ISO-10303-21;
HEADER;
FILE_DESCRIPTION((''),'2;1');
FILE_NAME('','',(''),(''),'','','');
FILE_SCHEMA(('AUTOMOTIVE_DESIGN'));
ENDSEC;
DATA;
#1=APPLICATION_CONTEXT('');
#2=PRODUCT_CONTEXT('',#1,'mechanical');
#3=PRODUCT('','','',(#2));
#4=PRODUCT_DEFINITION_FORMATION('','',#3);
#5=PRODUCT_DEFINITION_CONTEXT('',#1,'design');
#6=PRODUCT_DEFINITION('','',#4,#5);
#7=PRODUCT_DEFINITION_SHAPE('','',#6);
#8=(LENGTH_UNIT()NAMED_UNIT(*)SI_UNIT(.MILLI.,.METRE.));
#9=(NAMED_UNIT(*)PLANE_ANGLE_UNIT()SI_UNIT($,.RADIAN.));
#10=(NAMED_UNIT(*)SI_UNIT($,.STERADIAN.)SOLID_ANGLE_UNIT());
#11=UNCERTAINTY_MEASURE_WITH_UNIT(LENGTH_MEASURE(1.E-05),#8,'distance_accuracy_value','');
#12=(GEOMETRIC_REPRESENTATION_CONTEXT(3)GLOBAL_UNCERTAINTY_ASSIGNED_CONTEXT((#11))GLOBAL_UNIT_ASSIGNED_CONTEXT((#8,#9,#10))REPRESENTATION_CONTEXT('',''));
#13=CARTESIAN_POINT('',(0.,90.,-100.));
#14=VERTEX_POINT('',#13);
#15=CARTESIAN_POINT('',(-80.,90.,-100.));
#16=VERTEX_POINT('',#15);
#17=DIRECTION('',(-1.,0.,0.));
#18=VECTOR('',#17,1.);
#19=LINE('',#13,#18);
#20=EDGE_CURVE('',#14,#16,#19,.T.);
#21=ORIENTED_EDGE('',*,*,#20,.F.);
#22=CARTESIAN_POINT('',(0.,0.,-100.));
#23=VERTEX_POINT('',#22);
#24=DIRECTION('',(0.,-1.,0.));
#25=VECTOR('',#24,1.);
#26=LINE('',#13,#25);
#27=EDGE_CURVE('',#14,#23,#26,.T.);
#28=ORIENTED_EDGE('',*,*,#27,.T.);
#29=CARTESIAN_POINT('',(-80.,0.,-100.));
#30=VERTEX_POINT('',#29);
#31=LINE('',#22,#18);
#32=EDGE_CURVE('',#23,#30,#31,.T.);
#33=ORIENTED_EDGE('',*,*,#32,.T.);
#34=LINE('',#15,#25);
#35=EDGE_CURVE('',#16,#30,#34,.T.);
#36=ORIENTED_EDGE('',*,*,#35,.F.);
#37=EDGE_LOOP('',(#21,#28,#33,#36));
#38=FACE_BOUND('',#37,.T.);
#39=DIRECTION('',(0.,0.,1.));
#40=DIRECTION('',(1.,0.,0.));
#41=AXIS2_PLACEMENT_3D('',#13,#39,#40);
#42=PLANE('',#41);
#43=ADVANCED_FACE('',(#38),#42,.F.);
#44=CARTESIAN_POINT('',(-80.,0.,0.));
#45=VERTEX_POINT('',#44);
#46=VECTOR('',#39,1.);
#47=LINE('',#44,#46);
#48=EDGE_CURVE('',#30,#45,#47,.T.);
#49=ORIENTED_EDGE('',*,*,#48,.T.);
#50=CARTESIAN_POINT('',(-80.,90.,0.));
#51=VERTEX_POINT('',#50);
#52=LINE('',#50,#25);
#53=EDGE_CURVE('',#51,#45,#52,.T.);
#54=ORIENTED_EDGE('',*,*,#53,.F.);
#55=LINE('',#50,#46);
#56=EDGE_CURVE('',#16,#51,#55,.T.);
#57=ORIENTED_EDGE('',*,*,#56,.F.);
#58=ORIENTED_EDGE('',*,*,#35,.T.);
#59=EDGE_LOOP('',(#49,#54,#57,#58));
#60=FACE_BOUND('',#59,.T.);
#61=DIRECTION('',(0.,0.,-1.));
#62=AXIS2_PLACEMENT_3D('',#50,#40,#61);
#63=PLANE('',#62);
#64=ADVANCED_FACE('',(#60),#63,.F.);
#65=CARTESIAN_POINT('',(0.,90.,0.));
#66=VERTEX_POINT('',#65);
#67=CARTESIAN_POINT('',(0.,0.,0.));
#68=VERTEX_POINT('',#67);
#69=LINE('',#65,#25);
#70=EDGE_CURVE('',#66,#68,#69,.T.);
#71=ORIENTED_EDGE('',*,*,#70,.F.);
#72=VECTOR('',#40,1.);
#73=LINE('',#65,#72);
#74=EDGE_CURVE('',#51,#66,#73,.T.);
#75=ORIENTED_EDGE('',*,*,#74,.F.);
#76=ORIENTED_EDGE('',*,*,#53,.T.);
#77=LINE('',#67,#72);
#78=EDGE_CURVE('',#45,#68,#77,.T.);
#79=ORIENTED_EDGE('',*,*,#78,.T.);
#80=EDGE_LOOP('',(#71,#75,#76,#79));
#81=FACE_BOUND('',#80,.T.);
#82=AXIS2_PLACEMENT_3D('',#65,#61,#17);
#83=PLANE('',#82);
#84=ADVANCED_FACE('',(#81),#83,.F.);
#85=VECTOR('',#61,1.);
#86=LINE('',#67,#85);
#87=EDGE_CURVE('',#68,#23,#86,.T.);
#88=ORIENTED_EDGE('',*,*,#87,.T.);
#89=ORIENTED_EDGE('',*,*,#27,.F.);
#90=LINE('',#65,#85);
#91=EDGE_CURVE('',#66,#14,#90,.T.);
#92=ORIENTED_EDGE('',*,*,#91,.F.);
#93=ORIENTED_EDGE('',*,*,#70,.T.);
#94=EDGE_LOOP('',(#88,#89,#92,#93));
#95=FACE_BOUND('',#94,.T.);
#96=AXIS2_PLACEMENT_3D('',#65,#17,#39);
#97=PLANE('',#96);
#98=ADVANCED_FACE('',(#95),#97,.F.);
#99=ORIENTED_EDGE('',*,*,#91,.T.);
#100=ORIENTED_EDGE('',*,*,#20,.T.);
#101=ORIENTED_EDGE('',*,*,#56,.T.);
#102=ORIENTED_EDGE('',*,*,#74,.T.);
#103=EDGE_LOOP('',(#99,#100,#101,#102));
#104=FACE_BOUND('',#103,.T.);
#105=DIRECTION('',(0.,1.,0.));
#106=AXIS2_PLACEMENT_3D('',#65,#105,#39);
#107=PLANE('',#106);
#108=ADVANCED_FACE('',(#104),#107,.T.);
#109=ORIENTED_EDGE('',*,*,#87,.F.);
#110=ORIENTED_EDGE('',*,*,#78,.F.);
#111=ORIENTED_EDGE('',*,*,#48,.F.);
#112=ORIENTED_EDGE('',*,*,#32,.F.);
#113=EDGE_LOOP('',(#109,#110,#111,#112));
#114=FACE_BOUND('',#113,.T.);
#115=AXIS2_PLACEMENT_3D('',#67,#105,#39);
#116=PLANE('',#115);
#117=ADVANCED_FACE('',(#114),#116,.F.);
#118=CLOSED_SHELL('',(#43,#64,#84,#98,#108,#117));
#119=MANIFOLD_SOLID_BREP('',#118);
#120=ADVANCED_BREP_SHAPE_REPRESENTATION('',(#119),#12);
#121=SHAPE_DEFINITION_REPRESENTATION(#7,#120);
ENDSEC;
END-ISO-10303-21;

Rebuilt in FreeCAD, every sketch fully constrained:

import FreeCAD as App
import Part
import Sketcher

V = App.Vector


def add_polygon(sketch, points):
    """Adds a closed chain of lines whose ends are joined by coincident constraints."""
    first, n = sketch.GeometryCount, len(points)
    for a, b in zip(points, points[1:] + points[:1]):
        sketch.addGeometry(Part.LineSegment(App.Vector(*a, 0), App.Vector(*b, 0)), False)
    for i in range(n):
        sketch.addConstraint(Sketcher.Constraint("Coincident", first + i, 2, first + (i + 1) % n, 1))

doc = App.newDocument("Part")
body = doc.addObject("PartDesign::Body", "Body")

sketch1 = doc.addObject("Sketcher::SketchObject", "Sketch")
body.addObject(sketch1)
sketch1.AttachmentSupport = (doc.XZ_Plane, [""])
sketch1.MapMode = "FlatFace"
add_polygon(sketch1, [(-80, -100), (-80, 0), (0, 0), (0, -100)])
sketch1.addConstraint([
    Sketcher.Constraint("Vertical", 0),
    Sketcher.Constraint("Horizontal", 1),
    Sketcher.Constraint("Vertical", 2),
    Sketcher.Constraint("Horizontal", 3),
    Sketcher.Constraint("Coincident", 1, 2, -1, 1),
    Sketcher.Constraint("DistanceX", 1, 1, 1, 2, 80.0),
    Sketcher.Constraint("DistanceY", 0, 1, 0, 2, 100.0),
])
pad1 = doc.addObject("PartDesign::Pad", "Pad")
body.addObject(pad1)
pad1.Profile = sketch1
pad1.Length = 90
pad1.Reversed = True

doc.recompute()
